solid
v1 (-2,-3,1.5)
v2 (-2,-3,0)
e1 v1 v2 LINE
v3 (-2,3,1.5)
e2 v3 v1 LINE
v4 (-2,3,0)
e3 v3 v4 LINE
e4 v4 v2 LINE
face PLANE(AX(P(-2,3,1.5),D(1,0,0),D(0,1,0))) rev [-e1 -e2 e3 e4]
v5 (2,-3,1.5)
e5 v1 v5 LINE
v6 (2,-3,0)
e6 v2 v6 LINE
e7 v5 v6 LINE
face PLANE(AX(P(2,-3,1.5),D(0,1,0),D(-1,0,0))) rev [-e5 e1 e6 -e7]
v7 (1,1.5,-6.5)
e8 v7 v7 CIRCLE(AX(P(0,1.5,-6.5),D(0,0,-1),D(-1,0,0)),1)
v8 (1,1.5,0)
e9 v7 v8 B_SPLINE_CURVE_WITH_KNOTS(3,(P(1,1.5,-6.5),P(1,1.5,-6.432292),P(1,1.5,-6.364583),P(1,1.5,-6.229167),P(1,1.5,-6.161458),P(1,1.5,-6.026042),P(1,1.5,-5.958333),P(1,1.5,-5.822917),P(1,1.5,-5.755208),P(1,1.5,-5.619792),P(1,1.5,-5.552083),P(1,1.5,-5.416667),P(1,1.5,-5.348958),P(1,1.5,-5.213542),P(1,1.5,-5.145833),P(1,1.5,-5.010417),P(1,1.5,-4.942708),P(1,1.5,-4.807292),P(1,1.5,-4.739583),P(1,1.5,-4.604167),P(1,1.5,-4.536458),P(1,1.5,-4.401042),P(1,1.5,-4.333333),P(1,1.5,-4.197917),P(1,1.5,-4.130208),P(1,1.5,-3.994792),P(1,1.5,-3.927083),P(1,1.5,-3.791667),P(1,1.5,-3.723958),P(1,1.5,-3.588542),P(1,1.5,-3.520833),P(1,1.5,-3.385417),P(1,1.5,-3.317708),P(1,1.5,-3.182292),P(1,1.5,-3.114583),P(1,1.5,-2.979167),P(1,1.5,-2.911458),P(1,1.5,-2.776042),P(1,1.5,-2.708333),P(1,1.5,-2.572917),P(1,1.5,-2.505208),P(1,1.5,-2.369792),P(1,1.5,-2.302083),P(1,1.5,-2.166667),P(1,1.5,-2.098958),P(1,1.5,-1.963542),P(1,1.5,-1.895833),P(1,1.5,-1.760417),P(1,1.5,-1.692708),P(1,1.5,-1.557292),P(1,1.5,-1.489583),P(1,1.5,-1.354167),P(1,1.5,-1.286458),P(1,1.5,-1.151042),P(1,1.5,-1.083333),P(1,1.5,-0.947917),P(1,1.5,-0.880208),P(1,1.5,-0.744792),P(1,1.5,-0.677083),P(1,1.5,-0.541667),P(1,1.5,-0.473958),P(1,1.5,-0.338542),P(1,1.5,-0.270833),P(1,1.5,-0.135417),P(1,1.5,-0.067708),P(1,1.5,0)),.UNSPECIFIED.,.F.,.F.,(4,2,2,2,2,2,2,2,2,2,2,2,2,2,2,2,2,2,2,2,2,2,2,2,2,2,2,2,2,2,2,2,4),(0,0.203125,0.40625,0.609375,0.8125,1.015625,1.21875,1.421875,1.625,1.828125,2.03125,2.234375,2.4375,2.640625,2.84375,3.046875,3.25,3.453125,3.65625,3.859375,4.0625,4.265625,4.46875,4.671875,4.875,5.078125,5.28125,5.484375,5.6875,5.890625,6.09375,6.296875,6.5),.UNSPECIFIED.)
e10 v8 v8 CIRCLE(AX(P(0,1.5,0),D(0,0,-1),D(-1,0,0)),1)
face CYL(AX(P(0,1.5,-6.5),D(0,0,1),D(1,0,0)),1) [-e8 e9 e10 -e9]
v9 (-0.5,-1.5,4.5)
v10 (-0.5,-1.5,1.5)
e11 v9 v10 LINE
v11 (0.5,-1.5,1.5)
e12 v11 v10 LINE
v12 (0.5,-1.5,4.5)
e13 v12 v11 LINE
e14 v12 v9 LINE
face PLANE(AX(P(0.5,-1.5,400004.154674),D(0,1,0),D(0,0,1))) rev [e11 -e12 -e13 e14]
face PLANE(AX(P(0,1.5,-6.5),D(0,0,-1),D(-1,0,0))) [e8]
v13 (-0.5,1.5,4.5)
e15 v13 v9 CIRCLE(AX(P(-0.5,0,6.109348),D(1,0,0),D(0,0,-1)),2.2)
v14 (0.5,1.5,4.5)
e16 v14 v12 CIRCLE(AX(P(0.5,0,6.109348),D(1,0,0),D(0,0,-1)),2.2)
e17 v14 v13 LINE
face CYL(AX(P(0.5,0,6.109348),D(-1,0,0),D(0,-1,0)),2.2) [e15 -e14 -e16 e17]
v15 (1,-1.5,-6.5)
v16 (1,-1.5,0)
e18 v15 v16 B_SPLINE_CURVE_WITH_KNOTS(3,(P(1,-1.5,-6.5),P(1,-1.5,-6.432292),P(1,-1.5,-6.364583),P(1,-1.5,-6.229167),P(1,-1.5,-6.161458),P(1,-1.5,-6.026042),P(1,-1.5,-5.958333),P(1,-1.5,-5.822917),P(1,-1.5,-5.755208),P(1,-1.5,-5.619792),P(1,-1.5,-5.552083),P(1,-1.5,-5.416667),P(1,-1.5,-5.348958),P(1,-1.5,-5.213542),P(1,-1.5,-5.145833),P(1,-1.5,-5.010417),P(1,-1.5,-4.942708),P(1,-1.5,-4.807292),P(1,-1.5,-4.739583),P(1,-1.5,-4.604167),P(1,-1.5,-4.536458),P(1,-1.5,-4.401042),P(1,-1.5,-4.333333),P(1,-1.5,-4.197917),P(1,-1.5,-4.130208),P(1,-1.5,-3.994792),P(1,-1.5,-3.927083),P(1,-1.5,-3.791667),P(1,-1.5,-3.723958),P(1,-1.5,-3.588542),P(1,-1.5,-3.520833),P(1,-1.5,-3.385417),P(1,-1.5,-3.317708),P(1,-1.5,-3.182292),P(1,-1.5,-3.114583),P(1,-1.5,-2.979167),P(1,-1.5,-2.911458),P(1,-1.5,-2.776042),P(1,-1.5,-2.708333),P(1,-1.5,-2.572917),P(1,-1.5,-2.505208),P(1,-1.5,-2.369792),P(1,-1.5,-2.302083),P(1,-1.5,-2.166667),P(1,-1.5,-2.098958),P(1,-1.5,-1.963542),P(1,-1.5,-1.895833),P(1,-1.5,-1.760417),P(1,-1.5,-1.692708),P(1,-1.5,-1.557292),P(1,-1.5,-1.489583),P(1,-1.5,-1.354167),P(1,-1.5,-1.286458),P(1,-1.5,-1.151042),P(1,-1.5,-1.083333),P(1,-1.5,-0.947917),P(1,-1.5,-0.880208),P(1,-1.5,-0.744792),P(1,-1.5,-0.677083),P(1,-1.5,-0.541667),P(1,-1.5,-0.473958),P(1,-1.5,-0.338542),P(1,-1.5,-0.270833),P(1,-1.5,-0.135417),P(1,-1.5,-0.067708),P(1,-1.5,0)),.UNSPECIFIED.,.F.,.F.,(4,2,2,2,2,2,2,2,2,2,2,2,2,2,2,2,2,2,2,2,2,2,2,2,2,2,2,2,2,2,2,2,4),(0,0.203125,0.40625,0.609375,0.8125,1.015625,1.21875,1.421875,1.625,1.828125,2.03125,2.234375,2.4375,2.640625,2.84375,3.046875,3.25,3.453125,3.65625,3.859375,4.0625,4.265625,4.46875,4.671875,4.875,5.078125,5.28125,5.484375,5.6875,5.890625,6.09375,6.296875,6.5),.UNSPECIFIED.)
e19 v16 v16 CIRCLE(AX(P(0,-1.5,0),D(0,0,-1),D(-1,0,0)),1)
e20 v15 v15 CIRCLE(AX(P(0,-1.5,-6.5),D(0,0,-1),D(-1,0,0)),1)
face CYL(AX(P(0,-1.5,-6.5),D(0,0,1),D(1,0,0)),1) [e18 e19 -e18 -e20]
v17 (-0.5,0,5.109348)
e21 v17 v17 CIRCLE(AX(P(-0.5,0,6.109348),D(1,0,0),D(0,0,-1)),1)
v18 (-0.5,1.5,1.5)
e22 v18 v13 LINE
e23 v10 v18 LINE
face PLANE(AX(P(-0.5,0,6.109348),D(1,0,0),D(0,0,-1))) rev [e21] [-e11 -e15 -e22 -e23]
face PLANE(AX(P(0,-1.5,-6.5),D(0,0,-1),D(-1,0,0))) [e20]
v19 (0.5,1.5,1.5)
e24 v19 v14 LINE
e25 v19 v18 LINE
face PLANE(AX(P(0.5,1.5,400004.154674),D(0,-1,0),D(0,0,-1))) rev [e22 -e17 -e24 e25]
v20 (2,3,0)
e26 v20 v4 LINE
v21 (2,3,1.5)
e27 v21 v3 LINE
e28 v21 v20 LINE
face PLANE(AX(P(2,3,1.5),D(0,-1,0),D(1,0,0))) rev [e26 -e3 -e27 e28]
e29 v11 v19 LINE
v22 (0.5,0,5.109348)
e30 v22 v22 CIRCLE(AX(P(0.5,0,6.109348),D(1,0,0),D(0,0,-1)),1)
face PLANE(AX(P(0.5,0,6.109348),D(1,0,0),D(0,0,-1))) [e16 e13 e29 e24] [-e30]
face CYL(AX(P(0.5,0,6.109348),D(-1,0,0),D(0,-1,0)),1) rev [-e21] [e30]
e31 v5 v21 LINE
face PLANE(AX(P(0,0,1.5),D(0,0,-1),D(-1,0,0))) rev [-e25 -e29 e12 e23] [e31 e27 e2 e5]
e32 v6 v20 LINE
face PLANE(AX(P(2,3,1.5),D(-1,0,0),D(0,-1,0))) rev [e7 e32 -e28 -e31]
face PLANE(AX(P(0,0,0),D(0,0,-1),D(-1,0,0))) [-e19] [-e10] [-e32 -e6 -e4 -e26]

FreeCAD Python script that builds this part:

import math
import FreeCAD as App
import Part
import Sketcher
Q = App.Units.Quantity


def add_polygon(sketch, points):
    """Adds a closed chain of lines whose ends are joined by coincident constraints."""
    first, n = sketch.GeometryCount, len(points)
    for a, b in zip(points, points[1:] + points[:1]):
        sketch.addGeometry(Part.LineSegment(App.Vector(*a, 0), App.Vector(*b, 0)), False)
    for i in range(n):
        sketch.addConstraint(Sketcher.Constraint("Coincident", first + i, 2, first + (i + 1) % n, 1))

doc = App.newDocument("Part")
body = doc.addObject("PartDesign::Body", "Body")

sketch1 = body.newObject("Sketcher::SketchObject", "Sketch")
sketch1.AttachmentSupport = (doc.getObject("XY_Plane"), [""])
sketch1.MapMode = "FlatFace"
add_polygon(sketch1, [(-2, 3), (-2, -3), (2, -3), (2, 3)])
sketch1.addConstraint(Sketcher.Constraint("Vertical", 0))
sketch1.addConstraint(Sketcher.Constraint("Horizontal", 1))
sketch1.addConstraint(Sketcher.Constraint("Vertical", 2))
sketch1.addConstraint(Sketcher.Constraint("Horizontal", 3))
sketch1.addConstraint(Sketcher.Constraint("Symmetric", 0, 2, 2, 2, -1, 1))
sketch1.addConstraint(Sketcher.Constraint("DistanceX", 1, 1, 1, 2, Q("4 mm")))
sketch1.addConstraint(Sketcher.Constraint("DistanceY", 0, 2, 0, 1, Q("6 mm")))
pad1 = body.newObject("PartDesign::Pad", "Pad")
pad1.Profile = sketch1
pad1.Length = 1.5

sketch2 = body.newObject("Sketcher::SketchObject", "Sketch001")
sketch2.AttachmentSupport = (doc.getObject("YZ_Plane"), [""])
sketch2.MapMode = "FlatFace"
sketch2.addGeometry(Part.LineSegment(App.Vector(1.5, 1.5, 0), App.Vector(1.5, 4.5, 0)), False)
sketch2.addGeometry(Part.ArcOfCircle(Part.Circle(App.Vector(0, 6.109348, 0), App.Vector(0, 0, 1), 2.2), math.radians(-47.014114), math.radians(227.014114)), False)
sketch2.addGeometry(Part.LineSegment(App.Vector(-1.5, 4.5, 0), App.Vector(-1.5, 1.5, 0)), False)
sketch2.addGeometry(Part.LineSegment(App.Vector(-1.5, 1.5, 0), App.Vector(1.5, 1.5, 0)), False)
sketch2.addGeometry(Part.Circle(App.Vector(0, 6.109348, 0), App.Vector(0, 0, 1), 1), False)
sketch2.addConstraint(Sketcher.Constraint("Coincident", 0, 2, 1, 1))
sketch2.addConstraint(Sketcher.Constraint("Coincident", 1, 2, 2, 1))
sketch2.addConstraint(Sketcher.Constraint("Coincident", 2, 2, 3, 1))
sketch2.addConstraint(Sketcher.Constraint("Coincident", 3, 2, 0, 1))
sketch2.addConstraint(Sketcher.Constraint("Vertical", 0))
sketch2.addConstraint(Sketcher.Constraint("Vertical", 2))
sketch2.addConstraint(Sketcher.Constraint("Horizontal", 3))
sketch2.addConstraint(Sketcher.Constraint("Coincident", 4, 3, 1, 3))
sketch2.addConstraint(Sketcher.Constraint("Symmetric", 0, 2, 1, 2, -2))
sketch2.addConstraint(Sketcher.Constraint("Equal", 3, 0))
sketch2.addConstraint(Sketcher.Constraint("Diameter", 4, Q("2 mm")))
sketch2.addConstraint(Sketcher.Constraint("Radius", 1, Q("2.2 mm")))
sketch2.addConstraint(Sketcher.Constraint("DistanceX", 3, 1, 3, 2, Q("3 mm")))
sketch2.addConstraint(Sketcher.Constraint("DistanceY", -1, 1, 0, 2, Q("4.5 mm")))
pad2 = body.newObject("PartDesign::Pad", "Pad001")
pad2.Profile = sketch2
pad2.Type = "TwoLengths"
pad2.Length = 0.5
pad2.Length2 = 0.5

sketch3 = body.newObject("Sketcher::SketchObject", "Sketch002")
sketch3.AttachmentSupport = (doc.getObject("XY_Plane"), [""])
sketch3.MapMode = "FlatFace"
sketch3.addGeometry(Part.Circle(App.Vector(0, 1.5, 0), App.Vector(0, 0, 1), 1), False)
sketch3.addGeometry(Part.Circle(App.Vector(0, -1.5, 0), App.Vector(0, 0, 1), 1), False)
sketch3.addConstraint(Sketcher.Constraint("Equal", 0, 1))
sketch3.addConstraint(Sketcher.Constraint("Symmetric", 0, 3, 1, 3, -1, 1))
sketch3.addConstraint(Sketcher.Constraint("PointOnObject", 0, 3, -2))
sketch3.addConstraint(Sketcher.Constraint("Diameter", 0, Q("2 mm")))
sketch3.addConstraint(Sketcher.Constraint("DistanceY", 1, 3, 0, 3, Q("3 mm")))
pad3 = body.newObject("PartDesign::Pad", "Pad002")
pad3.Profile = sketch3
pad3.Length = 6.5
pad3.Reversed = True

doc.recompute()
